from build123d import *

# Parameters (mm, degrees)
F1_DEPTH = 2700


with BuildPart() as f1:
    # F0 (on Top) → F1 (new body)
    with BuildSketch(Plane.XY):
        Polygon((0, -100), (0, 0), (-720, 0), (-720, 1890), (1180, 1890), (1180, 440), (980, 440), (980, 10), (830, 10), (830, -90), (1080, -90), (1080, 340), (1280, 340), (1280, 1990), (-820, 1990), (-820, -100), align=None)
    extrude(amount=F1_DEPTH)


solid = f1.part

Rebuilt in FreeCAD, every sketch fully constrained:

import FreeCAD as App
import Part
import Sketcher

V = App.Vector
Q = App.Units.Quantity


def add_polygon(sketch, points):
    """Adds a closed chain of lines whose ends are joined by coincident constraints."""
    first, n = sketch.GeometryCount, len(points)
    for a, b in zip(points, points[1:] + points[:1]):
        sketch.addGeometry(Part.LineSegment(App.Vector(*a, 0), App.Vector(*b, 0)), False)
    for i in range(n):
        sketch.addConstraint(Sketcher.Constraint("Coincident", first + i, 2, first + (i + 1) % n, 1))

doc = App.newDocument("Part")
body = doc.addObject("PartDesign::Body", "Body")

sketch1 = body.newObject("Sketcher::SketchObject", "Sketch")
sketch1.AttachmentSupport = (doc.getObject("XY_Plane"), [""])
sketch1.MapMode = "FlatFace"
add_polygon(sketch1, [(0, -100), (0, 0), (-720, 0), (-720, 1890), (1180, 1890), (1180, 440), (980, 440), (980, 10), (830, 10), (830, -90), (1080, -90), (1080, 340), (1280, 340), (1280, 1990), (-820, 1990), (-820, -100)])
sketch1.addConstraint([
    Sketcher.Constraint("Vertical", 0),
    Sketcher.Constraint("Horizontal", 1),
    Sketcher.Constraint("Vertical", 2),
    Sketcher.Constraint("Horizontal", 3),
    Sketcher.Constraint("Vertical", 4),
    Sketcher.Constraint("Horizontal", 5),
    Sketcher.Constraint("Vertical", 6),
    Sketcher.Constraint("Horizontal", 7),
    Sketcher.Constraint("Vertical", 8),
    Sketcher.Constraint("Horizontal", 9),
    Sketcher.Constraint("Vertical", 10),
    Sketcher.Constraint("Horizontal", 11),
    Sketcher.Constraint("Vertical", 12),
    Sketcher.Constraint("Horizontal", 13),
    Sketcher.Constraint("Vertical", 14),
    Sketcher.Constraint("Horizontal", 15),
    Sketcher.Constraint("Coincident", 0, 2, -1, 1),
    Sketcher.Constraint("Equal", 5, 11),
    Sketcher.Constraint("Equal", 0, 8),
    Sketcher.Constraint("Equal", 6, 10),
    Sketcher.Constraint("DistanceX", 1, 2, 1, 1, Q("720 mm")),
    Sketcher.Constraint("DistanceX", 3, 1, 3, 2, Q("1900 mm")),
    Sketcher.Constraint("DistanceX", 5, 2, 5, 1, Q("200 mm")),
    Sketcher.Constraint("DistanceX", 7, 2, 7, 1, Q("150 mm")),
    Sketcher.Constraint("DistanceX", 9, 1, 9, 2, Q("250 mm")),
    Sketcher.Constraint("DistanceX", 13, 2, 13, 1, Q("2100 mm")),
    Sketcher.Constraint("DistanceY", 0, 1, 0, 2, Q("100 mm")),
    Sketcher.Constraint("DistanceY", 2, 1, 2, 2, Q("1890 mm")),
    Sketcher.Constraint("DistanceY", 4, 2, 4, 1, Q("1450 mm")),
    Sketcher.Constraint("DistanceY", 6, 2, 6, 1, Q("430 mm")),
    Sketcher.Constraint("DistanceY", 12, 1, 12, 2, Q("1650 mm")),
])
pad1 = body.newObject("PartDesign::Pad", "Pad")
pad1.Profile = sketch1
pad1.Length = 2700

doc.recompute()
